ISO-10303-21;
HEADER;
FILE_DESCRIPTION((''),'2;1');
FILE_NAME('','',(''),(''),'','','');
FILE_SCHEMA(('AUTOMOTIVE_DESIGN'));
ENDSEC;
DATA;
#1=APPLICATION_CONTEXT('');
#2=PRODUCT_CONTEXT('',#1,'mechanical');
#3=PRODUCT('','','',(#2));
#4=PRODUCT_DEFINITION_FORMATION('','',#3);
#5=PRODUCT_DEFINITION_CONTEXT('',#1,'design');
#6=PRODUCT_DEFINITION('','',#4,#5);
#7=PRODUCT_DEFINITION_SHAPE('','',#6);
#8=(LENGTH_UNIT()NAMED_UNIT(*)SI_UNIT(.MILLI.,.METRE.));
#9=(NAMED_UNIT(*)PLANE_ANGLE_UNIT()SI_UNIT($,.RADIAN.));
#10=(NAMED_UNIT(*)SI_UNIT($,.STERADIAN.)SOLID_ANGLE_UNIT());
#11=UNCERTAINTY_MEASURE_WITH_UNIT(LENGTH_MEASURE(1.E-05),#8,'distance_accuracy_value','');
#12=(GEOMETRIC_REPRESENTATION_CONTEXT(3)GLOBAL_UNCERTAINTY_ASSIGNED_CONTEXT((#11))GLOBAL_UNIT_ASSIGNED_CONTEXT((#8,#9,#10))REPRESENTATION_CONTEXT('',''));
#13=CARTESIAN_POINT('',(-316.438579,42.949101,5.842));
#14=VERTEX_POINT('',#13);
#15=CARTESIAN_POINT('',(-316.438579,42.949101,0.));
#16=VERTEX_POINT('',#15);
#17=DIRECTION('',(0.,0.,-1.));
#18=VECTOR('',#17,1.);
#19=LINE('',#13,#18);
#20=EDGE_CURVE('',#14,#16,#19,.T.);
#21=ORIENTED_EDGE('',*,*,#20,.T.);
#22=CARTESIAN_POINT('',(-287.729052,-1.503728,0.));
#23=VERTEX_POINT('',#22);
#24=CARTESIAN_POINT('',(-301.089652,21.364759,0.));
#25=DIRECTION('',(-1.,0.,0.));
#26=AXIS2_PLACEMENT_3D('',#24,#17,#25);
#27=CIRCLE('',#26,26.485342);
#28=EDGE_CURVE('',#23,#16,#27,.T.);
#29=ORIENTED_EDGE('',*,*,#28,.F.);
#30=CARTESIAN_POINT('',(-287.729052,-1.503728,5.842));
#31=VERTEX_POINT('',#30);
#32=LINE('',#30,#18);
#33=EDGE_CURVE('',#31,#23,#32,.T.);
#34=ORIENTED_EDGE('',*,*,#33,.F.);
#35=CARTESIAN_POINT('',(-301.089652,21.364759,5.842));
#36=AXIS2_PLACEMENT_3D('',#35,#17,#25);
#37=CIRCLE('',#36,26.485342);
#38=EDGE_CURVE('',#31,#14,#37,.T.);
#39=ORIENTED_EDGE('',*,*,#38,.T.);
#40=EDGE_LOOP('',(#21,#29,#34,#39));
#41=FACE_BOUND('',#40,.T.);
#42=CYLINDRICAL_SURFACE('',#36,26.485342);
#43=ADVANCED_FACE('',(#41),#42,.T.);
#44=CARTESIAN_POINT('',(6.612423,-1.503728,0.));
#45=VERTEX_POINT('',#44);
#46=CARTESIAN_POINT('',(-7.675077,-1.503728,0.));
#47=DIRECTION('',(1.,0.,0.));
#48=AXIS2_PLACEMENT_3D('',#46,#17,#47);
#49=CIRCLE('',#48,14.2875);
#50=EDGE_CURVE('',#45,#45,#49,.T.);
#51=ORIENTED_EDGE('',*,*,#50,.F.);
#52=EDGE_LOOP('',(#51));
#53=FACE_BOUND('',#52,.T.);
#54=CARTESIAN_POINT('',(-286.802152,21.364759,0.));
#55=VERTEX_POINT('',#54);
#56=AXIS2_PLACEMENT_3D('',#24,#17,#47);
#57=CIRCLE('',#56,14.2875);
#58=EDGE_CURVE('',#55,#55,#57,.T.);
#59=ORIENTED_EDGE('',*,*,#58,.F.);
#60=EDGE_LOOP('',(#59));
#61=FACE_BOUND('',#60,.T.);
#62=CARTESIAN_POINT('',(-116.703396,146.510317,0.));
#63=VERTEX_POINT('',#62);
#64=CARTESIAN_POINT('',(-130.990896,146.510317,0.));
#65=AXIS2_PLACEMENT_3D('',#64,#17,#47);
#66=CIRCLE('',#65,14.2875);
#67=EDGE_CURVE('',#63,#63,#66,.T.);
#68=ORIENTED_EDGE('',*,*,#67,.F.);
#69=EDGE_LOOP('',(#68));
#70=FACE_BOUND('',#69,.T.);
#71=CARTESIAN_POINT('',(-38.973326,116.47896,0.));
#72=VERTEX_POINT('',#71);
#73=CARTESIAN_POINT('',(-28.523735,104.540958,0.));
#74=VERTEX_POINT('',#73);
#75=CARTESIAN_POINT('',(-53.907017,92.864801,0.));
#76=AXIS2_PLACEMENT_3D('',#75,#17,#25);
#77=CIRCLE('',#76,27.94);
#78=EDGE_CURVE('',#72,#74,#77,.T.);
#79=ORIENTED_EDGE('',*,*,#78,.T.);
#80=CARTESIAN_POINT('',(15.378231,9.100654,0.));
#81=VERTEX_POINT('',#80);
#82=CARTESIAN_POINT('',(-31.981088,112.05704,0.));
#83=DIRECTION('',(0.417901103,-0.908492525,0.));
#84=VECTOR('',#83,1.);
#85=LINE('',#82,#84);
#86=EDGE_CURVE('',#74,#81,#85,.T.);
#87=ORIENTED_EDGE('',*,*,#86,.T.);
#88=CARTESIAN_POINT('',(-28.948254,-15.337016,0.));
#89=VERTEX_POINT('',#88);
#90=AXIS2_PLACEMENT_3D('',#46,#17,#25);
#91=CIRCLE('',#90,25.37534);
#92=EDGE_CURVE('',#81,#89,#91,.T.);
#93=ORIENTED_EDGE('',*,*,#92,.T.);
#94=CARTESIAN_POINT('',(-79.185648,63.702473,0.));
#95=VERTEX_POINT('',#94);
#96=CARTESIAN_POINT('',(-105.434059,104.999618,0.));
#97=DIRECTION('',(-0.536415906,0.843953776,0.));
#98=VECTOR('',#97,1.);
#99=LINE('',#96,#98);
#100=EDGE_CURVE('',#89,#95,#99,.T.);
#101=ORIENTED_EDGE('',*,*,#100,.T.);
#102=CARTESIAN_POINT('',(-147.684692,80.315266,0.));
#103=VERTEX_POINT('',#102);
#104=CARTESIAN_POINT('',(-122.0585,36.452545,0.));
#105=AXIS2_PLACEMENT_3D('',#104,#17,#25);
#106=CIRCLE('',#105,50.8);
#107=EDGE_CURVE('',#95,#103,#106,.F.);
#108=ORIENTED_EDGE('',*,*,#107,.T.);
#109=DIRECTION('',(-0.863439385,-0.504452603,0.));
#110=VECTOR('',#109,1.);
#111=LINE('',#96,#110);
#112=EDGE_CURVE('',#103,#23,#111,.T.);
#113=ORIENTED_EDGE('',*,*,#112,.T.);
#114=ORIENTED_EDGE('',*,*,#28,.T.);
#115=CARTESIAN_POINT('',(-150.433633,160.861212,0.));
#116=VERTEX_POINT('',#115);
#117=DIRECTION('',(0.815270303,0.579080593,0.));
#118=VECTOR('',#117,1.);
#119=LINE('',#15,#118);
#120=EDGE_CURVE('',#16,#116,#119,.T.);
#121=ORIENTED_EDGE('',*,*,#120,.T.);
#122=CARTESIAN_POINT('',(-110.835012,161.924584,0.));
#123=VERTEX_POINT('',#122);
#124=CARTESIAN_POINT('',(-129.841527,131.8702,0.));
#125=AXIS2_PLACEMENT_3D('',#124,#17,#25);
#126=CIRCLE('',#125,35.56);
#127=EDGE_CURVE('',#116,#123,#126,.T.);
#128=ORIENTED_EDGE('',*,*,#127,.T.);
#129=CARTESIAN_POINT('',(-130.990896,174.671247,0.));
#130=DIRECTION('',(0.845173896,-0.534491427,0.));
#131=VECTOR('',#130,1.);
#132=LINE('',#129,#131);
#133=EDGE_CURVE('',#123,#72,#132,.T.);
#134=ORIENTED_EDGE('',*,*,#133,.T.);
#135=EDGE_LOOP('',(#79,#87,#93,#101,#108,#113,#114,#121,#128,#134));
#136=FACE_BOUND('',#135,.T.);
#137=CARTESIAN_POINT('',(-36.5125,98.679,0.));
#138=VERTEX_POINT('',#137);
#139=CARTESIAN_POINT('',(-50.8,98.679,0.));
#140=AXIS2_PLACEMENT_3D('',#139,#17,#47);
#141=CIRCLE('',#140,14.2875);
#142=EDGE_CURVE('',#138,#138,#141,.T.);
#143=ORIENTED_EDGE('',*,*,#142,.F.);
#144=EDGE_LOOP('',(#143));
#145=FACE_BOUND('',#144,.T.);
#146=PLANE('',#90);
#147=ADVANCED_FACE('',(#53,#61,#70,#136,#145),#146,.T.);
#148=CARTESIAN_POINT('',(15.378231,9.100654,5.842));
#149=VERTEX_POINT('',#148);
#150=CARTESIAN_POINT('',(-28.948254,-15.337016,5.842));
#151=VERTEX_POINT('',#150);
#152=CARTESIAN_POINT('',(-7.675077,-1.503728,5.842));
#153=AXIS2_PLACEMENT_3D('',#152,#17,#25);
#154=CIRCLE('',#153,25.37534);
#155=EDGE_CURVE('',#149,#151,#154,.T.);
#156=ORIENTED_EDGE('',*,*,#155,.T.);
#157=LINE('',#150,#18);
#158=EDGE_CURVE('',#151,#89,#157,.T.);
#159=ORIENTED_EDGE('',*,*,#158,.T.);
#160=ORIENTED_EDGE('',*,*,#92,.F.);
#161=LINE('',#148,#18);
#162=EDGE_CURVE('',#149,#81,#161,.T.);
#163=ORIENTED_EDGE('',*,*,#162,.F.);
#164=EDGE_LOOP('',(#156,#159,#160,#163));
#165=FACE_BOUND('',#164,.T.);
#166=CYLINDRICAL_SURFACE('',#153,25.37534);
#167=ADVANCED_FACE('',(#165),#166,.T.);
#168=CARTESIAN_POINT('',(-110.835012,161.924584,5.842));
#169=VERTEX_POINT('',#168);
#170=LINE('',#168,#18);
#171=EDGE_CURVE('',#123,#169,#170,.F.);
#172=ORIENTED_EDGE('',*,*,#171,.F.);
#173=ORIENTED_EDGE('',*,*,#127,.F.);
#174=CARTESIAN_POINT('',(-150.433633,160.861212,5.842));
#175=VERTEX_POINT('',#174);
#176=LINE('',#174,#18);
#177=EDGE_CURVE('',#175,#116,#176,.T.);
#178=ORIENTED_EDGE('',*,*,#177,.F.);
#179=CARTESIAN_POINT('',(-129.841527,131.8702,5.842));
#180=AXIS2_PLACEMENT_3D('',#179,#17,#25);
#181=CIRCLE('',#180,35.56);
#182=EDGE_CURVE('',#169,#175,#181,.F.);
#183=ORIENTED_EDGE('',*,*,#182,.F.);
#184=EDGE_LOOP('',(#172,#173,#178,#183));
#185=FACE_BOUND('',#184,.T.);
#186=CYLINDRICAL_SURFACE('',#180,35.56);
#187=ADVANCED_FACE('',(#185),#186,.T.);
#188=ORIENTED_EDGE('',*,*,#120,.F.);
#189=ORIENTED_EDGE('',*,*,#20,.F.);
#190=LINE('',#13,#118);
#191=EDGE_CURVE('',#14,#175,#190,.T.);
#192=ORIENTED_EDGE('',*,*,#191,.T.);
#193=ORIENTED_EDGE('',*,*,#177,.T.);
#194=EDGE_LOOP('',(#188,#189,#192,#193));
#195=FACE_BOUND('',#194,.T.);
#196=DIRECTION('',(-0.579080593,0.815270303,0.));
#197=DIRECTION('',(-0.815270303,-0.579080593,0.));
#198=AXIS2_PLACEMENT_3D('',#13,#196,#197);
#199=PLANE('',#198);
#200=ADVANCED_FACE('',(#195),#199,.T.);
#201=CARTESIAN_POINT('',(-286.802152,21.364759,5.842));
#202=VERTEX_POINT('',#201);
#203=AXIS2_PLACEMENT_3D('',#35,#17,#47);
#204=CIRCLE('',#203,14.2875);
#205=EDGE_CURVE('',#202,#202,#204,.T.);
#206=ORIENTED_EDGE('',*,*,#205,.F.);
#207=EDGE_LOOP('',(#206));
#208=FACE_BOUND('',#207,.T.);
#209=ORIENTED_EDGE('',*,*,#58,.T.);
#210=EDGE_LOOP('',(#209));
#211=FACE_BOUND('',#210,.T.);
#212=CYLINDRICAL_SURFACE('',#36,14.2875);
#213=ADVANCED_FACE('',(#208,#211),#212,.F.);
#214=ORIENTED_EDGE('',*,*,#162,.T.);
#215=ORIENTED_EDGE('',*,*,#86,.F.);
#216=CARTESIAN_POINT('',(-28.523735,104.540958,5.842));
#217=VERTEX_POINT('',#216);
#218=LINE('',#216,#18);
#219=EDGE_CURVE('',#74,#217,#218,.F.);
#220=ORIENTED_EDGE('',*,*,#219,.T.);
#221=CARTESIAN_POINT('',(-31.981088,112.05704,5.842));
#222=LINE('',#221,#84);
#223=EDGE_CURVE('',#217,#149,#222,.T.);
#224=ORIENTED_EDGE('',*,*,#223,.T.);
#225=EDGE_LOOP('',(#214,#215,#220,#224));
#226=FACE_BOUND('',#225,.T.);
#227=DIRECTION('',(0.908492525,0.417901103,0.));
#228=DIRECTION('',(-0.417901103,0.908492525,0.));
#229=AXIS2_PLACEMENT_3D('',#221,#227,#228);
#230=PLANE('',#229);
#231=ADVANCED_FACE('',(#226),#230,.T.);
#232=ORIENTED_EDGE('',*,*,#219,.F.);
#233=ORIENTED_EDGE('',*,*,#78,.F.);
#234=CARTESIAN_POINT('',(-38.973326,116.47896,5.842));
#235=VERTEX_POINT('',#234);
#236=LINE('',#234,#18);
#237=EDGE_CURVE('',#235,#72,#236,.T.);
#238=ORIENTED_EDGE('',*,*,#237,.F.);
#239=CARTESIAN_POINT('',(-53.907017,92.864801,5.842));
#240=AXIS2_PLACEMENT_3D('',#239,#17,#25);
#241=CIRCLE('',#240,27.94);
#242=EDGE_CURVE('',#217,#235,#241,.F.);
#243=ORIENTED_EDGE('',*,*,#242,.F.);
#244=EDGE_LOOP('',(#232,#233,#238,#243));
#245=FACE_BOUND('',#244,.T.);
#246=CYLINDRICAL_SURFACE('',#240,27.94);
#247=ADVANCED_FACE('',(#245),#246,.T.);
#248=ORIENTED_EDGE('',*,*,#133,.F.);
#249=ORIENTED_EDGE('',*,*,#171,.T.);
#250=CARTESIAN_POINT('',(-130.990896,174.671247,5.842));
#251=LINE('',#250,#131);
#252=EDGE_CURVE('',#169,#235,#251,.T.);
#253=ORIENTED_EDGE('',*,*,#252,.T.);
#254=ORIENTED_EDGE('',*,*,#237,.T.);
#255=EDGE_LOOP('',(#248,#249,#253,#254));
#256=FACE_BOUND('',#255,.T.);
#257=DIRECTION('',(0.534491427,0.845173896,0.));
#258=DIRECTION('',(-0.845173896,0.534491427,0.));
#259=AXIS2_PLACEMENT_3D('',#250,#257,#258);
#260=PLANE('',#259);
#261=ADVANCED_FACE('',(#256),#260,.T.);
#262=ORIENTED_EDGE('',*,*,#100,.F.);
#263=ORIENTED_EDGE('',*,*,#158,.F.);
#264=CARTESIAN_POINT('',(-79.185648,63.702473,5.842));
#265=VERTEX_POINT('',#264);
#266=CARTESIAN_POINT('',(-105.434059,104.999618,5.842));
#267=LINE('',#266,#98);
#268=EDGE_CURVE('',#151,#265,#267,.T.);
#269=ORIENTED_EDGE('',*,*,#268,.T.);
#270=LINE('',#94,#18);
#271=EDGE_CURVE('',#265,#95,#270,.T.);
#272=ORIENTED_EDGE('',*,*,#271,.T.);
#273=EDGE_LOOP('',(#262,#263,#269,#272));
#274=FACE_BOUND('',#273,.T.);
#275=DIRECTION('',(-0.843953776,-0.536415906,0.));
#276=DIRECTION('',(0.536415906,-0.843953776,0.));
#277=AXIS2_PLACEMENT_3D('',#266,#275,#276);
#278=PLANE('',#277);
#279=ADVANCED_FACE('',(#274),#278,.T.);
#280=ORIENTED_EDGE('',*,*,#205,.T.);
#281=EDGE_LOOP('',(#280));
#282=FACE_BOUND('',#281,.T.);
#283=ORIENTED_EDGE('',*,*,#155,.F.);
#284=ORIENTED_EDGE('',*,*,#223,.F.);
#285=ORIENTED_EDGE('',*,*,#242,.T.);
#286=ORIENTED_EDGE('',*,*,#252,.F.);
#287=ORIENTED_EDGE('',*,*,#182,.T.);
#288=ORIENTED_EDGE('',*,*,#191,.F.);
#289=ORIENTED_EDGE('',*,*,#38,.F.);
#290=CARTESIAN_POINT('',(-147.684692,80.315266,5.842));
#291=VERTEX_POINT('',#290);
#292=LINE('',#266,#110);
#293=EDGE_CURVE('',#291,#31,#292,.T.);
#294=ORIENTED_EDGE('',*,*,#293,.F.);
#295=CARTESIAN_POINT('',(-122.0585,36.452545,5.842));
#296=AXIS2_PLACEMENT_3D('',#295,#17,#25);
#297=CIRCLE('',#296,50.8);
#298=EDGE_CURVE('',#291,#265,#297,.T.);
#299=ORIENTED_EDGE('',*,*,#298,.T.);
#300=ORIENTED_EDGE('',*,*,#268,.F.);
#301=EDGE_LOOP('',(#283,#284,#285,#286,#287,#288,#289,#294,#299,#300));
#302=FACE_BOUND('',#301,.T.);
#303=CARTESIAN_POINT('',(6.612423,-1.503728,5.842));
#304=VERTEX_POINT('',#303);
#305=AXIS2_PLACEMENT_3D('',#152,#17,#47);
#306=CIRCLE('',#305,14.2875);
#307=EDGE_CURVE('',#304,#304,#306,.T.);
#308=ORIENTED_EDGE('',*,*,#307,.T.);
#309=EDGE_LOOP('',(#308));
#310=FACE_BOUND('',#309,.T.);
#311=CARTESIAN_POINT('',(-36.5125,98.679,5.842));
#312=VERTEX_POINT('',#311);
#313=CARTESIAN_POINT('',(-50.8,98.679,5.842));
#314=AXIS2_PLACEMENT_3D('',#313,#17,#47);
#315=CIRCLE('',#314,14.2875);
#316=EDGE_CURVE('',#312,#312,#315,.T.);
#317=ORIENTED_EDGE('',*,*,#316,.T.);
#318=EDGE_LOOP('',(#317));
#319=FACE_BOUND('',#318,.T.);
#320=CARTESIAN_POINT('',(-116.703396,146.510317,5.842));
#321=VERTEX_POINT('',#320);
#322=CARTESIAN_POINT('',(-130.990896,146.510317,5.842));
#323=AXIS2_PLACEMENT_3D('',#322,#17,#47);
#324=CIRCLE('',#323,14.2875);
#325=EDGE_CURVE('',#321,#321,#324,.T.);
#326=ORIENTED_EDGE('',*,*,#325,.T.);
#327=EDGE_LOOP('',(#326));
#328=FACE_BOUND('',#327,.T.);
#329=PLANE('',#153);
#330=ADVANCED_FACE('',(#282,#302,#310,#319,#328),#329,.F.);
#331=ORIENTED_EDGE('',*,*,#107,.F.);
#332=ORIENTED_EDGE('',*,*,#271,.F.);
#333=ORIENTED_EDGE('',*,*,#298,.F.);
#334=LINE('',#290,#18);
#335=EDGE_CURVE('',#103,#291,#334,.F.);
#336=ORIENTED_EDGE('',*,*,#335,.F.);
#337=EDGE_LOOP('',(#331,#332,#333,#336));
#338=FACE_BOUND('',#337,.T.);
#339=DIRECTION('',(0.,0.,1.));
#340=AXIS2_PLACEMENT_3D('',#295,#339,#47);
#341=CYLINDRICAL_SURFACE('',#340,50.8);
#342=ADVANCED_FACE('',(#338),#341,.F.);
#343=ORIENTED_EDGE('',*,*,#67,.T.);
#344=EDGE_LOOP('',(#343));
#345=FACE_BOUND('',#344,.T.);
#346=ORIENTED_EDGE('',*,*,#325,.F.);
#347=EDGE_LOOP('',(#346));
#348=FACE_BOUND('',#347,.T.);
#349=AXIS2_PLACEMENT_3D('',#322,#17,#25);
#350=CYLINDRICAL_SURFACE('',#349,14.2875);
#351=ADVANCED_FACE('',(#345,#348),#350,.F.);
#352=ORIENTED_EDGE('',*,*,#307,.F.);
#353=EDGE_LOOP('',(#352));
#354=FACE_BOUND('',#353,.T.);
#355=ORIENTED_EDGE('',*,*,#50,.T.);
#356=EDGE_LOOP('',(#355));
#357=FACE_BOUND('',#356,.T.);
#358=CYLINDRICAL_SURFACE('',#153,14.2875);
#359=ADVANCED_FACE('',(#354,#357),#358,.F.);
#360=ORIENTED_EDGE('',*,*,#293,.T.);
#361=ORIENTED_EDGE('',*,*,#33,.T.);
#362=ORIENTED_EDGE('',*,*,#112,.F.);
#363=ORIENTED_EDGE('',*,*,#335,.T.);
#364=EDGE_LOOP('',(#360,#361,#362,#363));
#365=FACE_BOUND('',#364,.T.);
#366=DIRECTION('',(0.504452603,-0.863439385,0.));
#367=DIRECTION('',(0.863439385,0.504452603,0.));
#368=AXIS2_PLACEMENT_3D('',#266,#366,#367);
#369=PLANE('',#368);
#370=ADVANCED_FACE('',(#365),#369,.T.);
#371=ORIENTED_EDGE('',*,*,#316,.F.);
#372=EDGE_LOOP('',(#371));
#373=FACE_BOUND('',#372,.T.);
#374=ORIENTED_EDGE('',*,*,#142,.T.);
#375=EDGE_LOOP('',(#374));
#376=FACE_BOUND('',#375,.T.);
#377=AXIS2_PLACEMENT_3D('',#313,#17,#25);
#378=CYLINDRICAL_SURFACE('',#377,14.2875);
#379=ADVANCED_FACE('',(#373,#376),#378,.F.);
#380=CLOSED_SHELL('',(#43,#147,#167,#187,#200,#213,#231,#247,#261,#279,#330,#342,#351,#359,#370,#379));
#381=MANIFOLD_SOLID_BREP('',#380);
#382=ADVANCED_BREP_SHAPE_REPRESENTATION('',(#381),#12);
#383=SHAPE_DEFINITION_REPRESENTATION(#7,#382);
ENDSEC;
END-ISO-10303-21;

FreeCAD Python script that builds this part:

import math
import FreeCAD as App
import Part
import Sketcher
Q = App.Units.Quantity


def edges_at(feature, points):
    """Names of the edges that pass closest to the given points."""
    edges = feature.Shape.Edges
    near = lambda p: min(range(len(edges)), key=lambda i: edges[i].distToShape(Part.Vertex(*p))[0])
    return sorted({f"Edge{near(p) + 1}" for p in points})

doc = App.newDocument("Part")
body = doc.addObject("PartDesign::Body", "Body")

# Sketch on XY plane
sketch1 = body.newObject("Sketcher::SketchObject", "Sketch")
sketch1.AttachmentSupport = (doc.getObject("XY_Plane"), [""])
sketch1.MapMode = "FlatFace"
sketch1.addGeometry([
    Part.LineSegment(App.Vector(-316.438579, 42.949101, 0), App.Vector(-130.990896, 174.671247, 0)),  # 0
    Part.LineSegment(App.Vector(-130.990896, 174.671247, 0), App.Vector(-31.981088, 112.05704, 0)),  # 1
    Part.LineSegment(App.Vector(-31.981088, 112.05704, 0), App.Vector(15.378231, 9.100654, 0)),  # 2
    Part.ArcOfCircle(Part.Circle(App.Vector(-7.675077, -1.503728, 0), App.Vector(0, 0, 1), 25.37534), math.radians(-146.9653), math.radians(24.702146)),  # 3
    Part.LineSegment(App.Vector(-28.948254, -15.337016, 0), App.Vector(-105.434059, 104.999618, 0)),  # 4
    Part.LineSegment(App.Vector(-105.434059, 104.999618, 0), App.Vector(-287.729052, -1.503728, 0)),  # 5
    Part.ArcOfCircle(Part.Circle(App.Vector(-301.089652, 21.364759, 0), App.Vector(0, 0, 1), 26.485342), math.radians(125.417163), math.radians(300.295022)),  # 6
    Part.Circle(App.Vector(-7.675077, -1.503728, 0), App.Vector(0, 0, 1), 14.2875),  # 7
    Part.Circle(App.Vector(-301.089652, 21.364759, 0), App.Vector(0, 0, 1), 14.2875),  # 8
    Part.Circle(App.Vector(-50.8, 98.679, 0), App.Vector(0, 0, 1), 14.2875),  # 9
    Part.Circle(App.Vector(-130.990896, 146.510317, 0), App.Vector(0, 0, 1), 14.2875),  # 10
], False)
sketch1.addConstraint([
    Sketcher.Constraint("Coincident", 0, 2, 1, 1),
    Sketcher.Constraint("Coincident", 1, 2, 2, 1),
    Sketcher.Constraint("Coincident", 2, 2, 3, 2),
    Sketcher.Constraint("Coincident", 3, 1, 4, 1),
    Sketcher.Constraint("Coincident", 4, 2, 5, 1),
    Sketcher.Constraint("Coincident", 5, 2, 6, 2),
    Sketcher.Constraint("Coincident", 6, 1, 0, 1),
    Sketcher.Constraint("Coincident", 7, 3, 3, 3),
    Sketcher.Constraint("Coincident", 8, 3, 6, 3),
    Sketcher.Constraint("Diameter", 7, Q("1.125 in")),
    Sketcher.Constraint("Diameter", 8, Q("1.125 in")),
    Sketcher.Constraint("Diameter", 9, Q("1.125 in")),
    Sketcher.Constraint("Diameter", 10, Q("1.125 in")),
    Sketcher.Constraint("DistanceX", 9, 3, -1, 1, Q("2 in")),
    Sketcher.Constraint("DistanceY", -1, 1, 9, 3, Q("3.885 in")),
    Sketcher.Constraint("Radius", 3, 25.37534),
    Sketcher.Constraint("Radius", 6, 26.485342),
    Sketcher.Constraint("DistanceY", -1, 1, 6, 1, 42.949101),
    Sketcher.Constraint("DistanceY", 4, 2, 10, 3, 41.510699),
    Sketcher.Constraint("DistanceX", 6, 3, 5, 2, 13.3606),
    Sketcher.Constraint("Distance", 4, 142.586759),
    Sketcher.Constraint("DistanceY", 3, 3, -1, 1, 1.503728),
    Sketcher.Constraint("DistanceY", -1, 1, 6, 3, 21.364759),
    Sketcher.Constraint("DistanceY", -1, 1, 1, 2, 112.05704),
    Sketcher.Constraint("DistanceX", -1, 1, 2, 2, 15.378231),
    Sketcher.Constraint("DistanceX", 4, 2, -1, 1, 105.434059),
    Sketcher.Constraint("DistanceX", 6, 1, -1, 1, 316.438579),
    Sketcher.Constraint("DistanceX", 10, 3, 3, 3, 123.31582),
    Sketcher.Constraint("DistanceY", 10, 3, 0, 2, 28.16093),
    Sketcher.Constraint("DistanceX", 0, 2, 3, 3, 123.31582),
    Sketcher.Constraint("DistanceX", 10, 3, 1, 2, 99.009808),
    Sketcher.Constraint("DistanceX", 1, 2, 2, 2, 47.359319),
    Sketcher.Constraint("DistanceY", 3, 1, 2, 2, 24.43767),
])
pad1 = body.newObject("PartDesign::Pad", "Pad")
pad1.Profile = sketch1
pad1.Length = Q("0.23 in")
doc.recompute()

fillet = body.newObject("PartDesign::Fillet", "Fillet")
fillet.Base = (pad1, edges_at(pad1, [(-130.991, 174.671, 2.921)]))
fillet.Radius = Q("1.4 in")
doc.recompute()

fillet2 = body.newObject("PartDesign::Fillet", "Fillet001")
fillet2.Base = (fillet, edges_at(fillet, [(-31.981, 112.057, 2.921)]))
fillet2.Radius = Q("1.1 in")
doc.recompute()

fillet3 = body.newObject("PartDesign::Fillet", "Fillet002")
fillet3.Base = (fillet2, edges_at(fillet2, [(-105.434, 105, 2.921)]))
fillet3.Radius = Q("2 in")

doc.recompute()
